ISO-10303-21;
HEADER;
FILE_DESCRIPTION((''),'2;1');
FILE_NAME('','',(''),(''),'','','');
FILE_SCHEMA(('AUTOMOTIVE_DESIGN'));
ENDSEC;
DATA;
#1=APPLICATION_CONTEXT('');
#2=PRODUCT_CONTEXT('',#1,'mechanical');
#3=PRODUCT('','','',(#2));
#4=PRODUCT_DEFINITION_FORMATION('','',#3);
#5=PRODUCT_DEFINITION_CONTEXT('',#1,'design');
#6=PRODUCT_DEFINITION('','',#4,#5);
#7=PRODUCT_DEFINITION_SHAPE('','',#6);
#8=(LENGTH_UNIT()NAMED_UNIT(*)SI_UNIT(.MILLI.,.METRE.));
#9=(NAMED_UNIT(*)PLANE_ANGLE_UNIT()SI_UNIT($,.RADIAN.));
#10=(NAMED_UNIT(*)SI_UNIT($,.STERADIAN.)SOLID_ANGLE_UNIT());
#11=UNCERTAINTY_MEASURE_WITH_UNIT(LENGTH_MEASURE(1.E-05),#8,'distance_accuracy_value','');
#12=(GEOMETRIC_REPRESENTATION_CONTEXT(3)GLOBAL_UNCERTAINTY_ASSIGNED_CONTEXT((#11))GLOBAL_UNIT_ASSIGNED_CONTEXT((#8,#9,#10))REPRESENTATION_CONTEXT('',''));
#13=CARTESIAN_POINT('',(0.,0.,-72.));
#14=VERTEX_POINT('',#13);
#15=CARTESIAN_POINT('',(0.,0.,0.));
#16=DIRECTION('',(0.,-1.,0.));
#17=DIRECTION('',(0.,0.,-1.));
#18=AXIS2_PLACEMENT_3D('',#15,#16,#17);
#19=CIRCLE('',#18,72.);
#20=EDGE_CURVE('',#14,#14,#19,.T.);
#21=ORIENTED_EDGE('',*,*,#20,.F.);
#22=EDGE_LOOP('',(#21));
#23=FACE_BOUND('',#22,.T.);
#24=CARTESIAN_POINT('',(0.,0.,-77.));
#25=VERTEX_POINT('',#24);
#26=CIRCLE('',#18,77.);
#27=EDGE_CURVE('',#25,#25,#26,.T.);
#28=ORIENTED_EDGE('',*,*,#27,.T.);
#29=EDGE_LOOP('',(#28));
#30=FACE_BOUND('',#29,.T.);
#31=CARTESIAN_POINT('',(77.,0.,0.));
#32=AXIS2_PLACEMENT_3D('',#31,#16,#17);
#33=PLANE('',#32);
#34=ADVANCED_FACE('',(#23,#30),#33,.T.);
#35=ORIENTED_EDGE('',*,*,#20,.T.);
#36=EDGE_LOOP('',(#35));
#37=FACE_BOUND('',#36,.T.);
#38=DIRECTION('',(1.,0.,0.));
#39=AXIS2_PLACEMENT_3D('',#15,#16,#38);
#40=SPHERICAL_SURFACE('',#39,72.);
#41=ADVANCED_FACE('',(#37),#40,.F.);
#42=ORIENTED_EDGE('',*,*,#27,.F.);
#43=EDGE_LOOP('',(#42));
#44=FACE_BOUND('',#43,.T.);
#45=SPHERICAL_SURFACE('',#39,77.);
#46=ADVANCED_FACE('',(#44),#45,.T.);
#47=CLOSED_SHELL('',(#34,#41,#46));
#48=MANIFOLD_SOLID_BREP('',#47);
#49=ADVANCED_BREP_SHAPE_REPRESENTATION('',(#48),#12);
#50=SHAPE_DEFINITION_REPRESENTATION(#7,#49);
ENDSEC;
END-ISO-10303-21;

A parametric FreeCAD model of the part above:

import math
import FreeCAD as App
import Part
import Sketcher

doc = App.newDocument("Part")
body = doc.addObject("PartDesign::Body", "Body")

# Sketch on XY plane
sketch1 = body.newObject("Sketcher::SketchObject", "Sketch")
sketch1.AttachmentSupport = (doc.getObject("XY_Plane"), [""])
sketch1.MapMode = "FlatFace"
sketch1.addGeometry(Part.LineSegment(App.Vector(0, 77, 0), App.Vector(0, 72, 0)), False)
sketch1.addGeometry(Part.ArcOfCircle(Part.Circle(App.Vector(0, 0, 0), App.Vector(0, 0, 1), 72), math.radians(0), math.radians(90)), False)
sketch1.addGeometry(Part.LineSegment(App.Vector(72, 0, 0), App.Vector(77, 0, 0)), False)
sketch1.addGeometry(Part.ArcOfCircle(Part.Circle(App.Vector(0, 0, 0), App.Vector(0, 0, 1), 77), math.radians(0), math.radians(90)), False)
sketch1.addConstraint(Sketcher.Constraint("Coincident", 0, 2, 1, 2))
sketch1.addConstraint(Sketcher.Constraint("Coincident", 1, 1, 2, 1))
sketch1.addConstraint(Sketcher.Constraint("Coincident", 2, 2, 3, 1))
sketch1.addConstraint(Sketcher.Constraint("Coincident", 3, 2, 0, 1))
sketch1.addConstraint(Sketcher.Constraint("Vertical", 0))
sketch1.addConstraint(Sketcher.Constraint("Horizontal", 2))
sketch1.addConstraint(Sketcher.Constraint("Coincident", 1, 3, -1, 1))
sketch1.addConstraint(Sketcher.Constraint("Coincident", 3, 3, -1, 1))
sketch1.addConstraint(Sketcher.Constraint("PointOnObject", 0, 2, -2))
sketch1.addConstraint(Sketcher.Constraint("PointOnObject", 1, 1, -1))
sketch1.addConstraint(Sketcher.Constraint("Radius", 1, 72.0))
sketch1.addConstraint(Sketcher.Constraint("Radius", 3, 77.0))
revolution = body.newObject("PartDesign::Revolution", "Revolution")
revolution.Profile = sketch1
revolution.ReferenceAxis = (sketch1, ["V_Axis"])
revolution.Angle = 360

doc.recompute()
